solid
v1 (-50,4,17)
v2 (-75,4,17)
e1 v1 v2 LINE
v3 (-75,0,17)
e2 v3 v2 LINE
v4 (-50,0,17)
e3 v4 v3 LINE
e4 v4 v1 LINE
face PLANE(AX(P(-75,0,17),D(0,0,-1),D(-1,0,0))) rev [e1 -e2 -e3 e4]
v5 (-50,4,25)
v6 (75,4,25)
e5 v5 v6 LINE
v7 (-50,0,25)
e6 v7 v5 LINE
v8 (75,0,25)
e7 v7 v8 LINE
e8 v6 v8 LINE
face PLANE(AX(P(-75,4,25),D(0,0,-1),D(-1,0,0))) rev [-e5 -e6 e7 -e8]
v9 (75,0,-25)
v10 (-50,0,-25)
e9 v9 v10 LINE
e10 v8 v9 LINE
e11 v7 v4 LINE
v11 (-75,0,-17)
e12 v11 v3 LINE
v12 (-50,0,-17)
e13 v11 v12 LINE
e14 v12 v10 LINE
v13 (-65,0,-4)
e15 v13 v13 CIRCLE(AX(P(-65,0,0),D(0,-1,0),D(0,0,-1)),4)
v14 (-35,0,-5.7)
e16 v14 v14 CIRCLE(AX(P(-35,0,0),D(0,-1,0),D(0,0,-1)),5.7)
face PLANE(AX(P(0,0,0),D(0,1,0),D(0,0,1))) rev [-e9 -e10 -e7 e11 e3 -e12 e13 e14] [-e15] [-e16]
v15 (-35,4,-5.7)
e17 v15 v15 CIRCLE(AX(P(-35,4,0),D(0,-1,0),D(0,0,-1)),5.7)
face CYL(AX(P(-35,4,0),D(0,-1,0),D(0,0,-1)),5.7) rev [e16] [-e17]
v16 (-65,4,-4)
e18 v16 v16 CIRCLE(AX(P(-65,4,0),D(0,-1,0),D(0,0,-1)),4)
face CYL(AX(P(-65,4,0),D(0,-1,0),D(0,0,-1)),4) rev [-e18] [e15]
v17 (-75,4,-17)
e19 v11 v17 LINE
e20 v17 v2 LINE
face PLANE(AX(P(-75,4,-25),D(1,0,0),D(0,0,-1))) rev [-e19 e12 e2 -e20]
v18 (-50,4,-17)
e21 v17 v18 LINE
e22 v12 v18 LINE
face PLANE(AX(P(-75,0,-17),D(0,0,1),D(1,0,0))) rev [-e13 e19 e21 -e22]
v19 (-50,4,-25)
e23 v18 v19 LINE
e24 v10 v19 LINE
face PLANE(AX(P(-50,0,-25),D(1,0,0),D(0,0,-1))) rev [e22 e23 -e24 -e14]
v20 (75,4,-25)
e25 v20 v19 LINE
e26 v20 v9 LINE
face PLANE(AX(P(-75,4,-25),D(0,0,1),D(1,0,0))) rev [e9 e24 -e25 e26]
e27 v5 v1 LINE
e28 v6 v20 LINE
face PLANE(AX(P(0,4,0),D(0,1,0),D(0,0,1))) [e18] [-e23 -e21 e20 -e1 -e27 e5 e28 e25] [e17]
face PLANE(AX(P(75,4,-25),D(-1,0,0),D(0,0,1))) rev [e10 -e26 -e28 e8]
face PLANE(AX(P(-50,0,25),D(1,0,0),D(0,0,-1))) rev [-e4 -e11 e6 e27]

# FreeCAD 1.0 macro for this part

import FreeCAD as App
import Part
import Sketcher
from FreeCAD import Vector


def add_polygon(sketch, points):
    """Adds a closed chain of lines whose ends are joined by coincident constraints."""
    first, n = sketch.GeometryCount, len(points)
    for a, b in zip(points, points[1:] + points[:1]):
        sketch.addGeometry(Part.LineSegment(App.Vector(*a, 0), App.Vector(*b, 0)), False)
    for i in range(n):
        sketch.addConstraint(Sketcher.Constraint("Coincident", first + i, 2, first + (i + 1) % n, 1))

doc = App.newDocument("Part")
body = doc.addObject("PartDesign::Body", "Body")

# Sketch on XZ plane
sketch1 = doc.addObject("Sketcher::SketchObject", "Sketch")
body.addObject(sketch1)
sketch1.AttachmentSupport = (doc.XZ_Plane, [""])
sketch1.MapMode = "FlatFace"
add_polygon(sketch1, [(-75, -25), (-75, 25), (75, 25), (75, -25)])  # lines 0-3
sketch1.addConstraint([
    Sketcher.Constraint("Vertical", 0),
    Sketcher.Constraint("Horizontal", 1),
    Sketcher.Constraint("Vertical", 2),
    Sketcher.Constraint("Horizontal", 3),
    Sketcher.Constraint("Symmetric", 0, 2, 2, 2, -1, 1),
    Sketcher.Constraint("DistanceX", 1, 1, 1, 2, 150.0),
    Sketcher.Constraint("DistanceY", 0, 1, 0, 2, 50.0),
])
pad1 = doc.addObject("PartDesign::Pad", "Pad")
body.addObject(pad1)
pad1.Profile = sketch1
pad1.Length = 4
pad1.Reversed = True

# Sketch on XZ plane
sketch2 = doc.addObject("Sketcher::SketchObject", "Sketch001")
body.addObject(sketch2)
sketch2.AttachmentSupport = (doc.XZ_Plane, [""])
sketch2.MapMode = "FlatFace"
sketch2.addGeometry([
    Part.Circle(Vector(-65, 0, 0), Vector(0, 0, 1), 4),
    Part.Circle(Vector(-35, 0, 0), Vector(0, 0, 1), 5.7),
], False)
sketch2.addConstraint([
    Sketcher.Constraint("PointOnObject", 0, 3, -1),
    Sketcher.Constraint("PointOnObject", 1, 3, -1),
    Sketcher.Constraint("Diameter", 0, 8.0),
    Sketcher.Constraint("Diameter", 1, 11.4),
    Sketcher.Constraint("DistanceX", 0, 3, -1, 1, 65.0),
    Sketcher.Constraint("DistanceX", 1, 3, -1, 1, 35.0),
])
pocket1 = doc.addObject("PartDesign::Pocket", "Pocket")
body.addObject(pocket1)
pocket1.Profile = sketch2
pocket1.Length = 4

# Sketch on XZ plane
sketch3 = doc.addObject("Sketcher::SketchObject", "Sketch002")
body.addObject(sketch3)
sketch3.AttachmentSupport = (doc.XZ_Plane, [""])
sketch3.MapMode = "FlatFace"
sketch3.AttachmentOffset = App.Placement(Vector(0, 0, -4), App.Rotation())
add_polygon(sketch3, [(-75, -25), (-75, -17), (-50, -17), (-50, -25)])  # lines 0-3
add_polygon(sketch3, [(-75, 17), (-75, 25), (-50, 25), (-50, 17)])  # lines 4-7
sketch3.addConstraint([
    Sketcher.Constraint("Vertical", 0),
    Sketcher.Constraint("Horizontal", 1),
    Sketcher.Constraint("Vertical", 2),
    Sketcher.Constraint("Horizontal", 3),
    Sketcher.Constraint("Vertical", 4),
    Sketcher.Constraint("Horizontal", 5),
    Sketcher.Constraint("Vertical", 6),
    Sketcher.Constraint("Horizontal", 7),
    Sketcher.Constraint("Symmetric", 3, 2, 4, 2, -1),
    Sketcher.Constraint("Symmetric", 1, 2, 6, 2, -1),
    Sketcher.Constraint("DistanceX", 1, 1, 1, 2, 25.0),
    Sketcher.Constraint("DistanceY", 0, 1, 0, 2, 8.0),
    Sketcher.Constraint("DistanceX", 0, 2, -1, 1, 75.0),
    Sketcher.Constraint("DistanceY", 0, 2, -1, 1, 17.0),
])
pocket2 = doc.addObject("PartDesign::Pocket", "Pocket001")
body.addObject(pocket2)
pocket2.Profile = sketch3
pocket2.Length = 4
pocket2.Reversed = True

doc.recompute()
